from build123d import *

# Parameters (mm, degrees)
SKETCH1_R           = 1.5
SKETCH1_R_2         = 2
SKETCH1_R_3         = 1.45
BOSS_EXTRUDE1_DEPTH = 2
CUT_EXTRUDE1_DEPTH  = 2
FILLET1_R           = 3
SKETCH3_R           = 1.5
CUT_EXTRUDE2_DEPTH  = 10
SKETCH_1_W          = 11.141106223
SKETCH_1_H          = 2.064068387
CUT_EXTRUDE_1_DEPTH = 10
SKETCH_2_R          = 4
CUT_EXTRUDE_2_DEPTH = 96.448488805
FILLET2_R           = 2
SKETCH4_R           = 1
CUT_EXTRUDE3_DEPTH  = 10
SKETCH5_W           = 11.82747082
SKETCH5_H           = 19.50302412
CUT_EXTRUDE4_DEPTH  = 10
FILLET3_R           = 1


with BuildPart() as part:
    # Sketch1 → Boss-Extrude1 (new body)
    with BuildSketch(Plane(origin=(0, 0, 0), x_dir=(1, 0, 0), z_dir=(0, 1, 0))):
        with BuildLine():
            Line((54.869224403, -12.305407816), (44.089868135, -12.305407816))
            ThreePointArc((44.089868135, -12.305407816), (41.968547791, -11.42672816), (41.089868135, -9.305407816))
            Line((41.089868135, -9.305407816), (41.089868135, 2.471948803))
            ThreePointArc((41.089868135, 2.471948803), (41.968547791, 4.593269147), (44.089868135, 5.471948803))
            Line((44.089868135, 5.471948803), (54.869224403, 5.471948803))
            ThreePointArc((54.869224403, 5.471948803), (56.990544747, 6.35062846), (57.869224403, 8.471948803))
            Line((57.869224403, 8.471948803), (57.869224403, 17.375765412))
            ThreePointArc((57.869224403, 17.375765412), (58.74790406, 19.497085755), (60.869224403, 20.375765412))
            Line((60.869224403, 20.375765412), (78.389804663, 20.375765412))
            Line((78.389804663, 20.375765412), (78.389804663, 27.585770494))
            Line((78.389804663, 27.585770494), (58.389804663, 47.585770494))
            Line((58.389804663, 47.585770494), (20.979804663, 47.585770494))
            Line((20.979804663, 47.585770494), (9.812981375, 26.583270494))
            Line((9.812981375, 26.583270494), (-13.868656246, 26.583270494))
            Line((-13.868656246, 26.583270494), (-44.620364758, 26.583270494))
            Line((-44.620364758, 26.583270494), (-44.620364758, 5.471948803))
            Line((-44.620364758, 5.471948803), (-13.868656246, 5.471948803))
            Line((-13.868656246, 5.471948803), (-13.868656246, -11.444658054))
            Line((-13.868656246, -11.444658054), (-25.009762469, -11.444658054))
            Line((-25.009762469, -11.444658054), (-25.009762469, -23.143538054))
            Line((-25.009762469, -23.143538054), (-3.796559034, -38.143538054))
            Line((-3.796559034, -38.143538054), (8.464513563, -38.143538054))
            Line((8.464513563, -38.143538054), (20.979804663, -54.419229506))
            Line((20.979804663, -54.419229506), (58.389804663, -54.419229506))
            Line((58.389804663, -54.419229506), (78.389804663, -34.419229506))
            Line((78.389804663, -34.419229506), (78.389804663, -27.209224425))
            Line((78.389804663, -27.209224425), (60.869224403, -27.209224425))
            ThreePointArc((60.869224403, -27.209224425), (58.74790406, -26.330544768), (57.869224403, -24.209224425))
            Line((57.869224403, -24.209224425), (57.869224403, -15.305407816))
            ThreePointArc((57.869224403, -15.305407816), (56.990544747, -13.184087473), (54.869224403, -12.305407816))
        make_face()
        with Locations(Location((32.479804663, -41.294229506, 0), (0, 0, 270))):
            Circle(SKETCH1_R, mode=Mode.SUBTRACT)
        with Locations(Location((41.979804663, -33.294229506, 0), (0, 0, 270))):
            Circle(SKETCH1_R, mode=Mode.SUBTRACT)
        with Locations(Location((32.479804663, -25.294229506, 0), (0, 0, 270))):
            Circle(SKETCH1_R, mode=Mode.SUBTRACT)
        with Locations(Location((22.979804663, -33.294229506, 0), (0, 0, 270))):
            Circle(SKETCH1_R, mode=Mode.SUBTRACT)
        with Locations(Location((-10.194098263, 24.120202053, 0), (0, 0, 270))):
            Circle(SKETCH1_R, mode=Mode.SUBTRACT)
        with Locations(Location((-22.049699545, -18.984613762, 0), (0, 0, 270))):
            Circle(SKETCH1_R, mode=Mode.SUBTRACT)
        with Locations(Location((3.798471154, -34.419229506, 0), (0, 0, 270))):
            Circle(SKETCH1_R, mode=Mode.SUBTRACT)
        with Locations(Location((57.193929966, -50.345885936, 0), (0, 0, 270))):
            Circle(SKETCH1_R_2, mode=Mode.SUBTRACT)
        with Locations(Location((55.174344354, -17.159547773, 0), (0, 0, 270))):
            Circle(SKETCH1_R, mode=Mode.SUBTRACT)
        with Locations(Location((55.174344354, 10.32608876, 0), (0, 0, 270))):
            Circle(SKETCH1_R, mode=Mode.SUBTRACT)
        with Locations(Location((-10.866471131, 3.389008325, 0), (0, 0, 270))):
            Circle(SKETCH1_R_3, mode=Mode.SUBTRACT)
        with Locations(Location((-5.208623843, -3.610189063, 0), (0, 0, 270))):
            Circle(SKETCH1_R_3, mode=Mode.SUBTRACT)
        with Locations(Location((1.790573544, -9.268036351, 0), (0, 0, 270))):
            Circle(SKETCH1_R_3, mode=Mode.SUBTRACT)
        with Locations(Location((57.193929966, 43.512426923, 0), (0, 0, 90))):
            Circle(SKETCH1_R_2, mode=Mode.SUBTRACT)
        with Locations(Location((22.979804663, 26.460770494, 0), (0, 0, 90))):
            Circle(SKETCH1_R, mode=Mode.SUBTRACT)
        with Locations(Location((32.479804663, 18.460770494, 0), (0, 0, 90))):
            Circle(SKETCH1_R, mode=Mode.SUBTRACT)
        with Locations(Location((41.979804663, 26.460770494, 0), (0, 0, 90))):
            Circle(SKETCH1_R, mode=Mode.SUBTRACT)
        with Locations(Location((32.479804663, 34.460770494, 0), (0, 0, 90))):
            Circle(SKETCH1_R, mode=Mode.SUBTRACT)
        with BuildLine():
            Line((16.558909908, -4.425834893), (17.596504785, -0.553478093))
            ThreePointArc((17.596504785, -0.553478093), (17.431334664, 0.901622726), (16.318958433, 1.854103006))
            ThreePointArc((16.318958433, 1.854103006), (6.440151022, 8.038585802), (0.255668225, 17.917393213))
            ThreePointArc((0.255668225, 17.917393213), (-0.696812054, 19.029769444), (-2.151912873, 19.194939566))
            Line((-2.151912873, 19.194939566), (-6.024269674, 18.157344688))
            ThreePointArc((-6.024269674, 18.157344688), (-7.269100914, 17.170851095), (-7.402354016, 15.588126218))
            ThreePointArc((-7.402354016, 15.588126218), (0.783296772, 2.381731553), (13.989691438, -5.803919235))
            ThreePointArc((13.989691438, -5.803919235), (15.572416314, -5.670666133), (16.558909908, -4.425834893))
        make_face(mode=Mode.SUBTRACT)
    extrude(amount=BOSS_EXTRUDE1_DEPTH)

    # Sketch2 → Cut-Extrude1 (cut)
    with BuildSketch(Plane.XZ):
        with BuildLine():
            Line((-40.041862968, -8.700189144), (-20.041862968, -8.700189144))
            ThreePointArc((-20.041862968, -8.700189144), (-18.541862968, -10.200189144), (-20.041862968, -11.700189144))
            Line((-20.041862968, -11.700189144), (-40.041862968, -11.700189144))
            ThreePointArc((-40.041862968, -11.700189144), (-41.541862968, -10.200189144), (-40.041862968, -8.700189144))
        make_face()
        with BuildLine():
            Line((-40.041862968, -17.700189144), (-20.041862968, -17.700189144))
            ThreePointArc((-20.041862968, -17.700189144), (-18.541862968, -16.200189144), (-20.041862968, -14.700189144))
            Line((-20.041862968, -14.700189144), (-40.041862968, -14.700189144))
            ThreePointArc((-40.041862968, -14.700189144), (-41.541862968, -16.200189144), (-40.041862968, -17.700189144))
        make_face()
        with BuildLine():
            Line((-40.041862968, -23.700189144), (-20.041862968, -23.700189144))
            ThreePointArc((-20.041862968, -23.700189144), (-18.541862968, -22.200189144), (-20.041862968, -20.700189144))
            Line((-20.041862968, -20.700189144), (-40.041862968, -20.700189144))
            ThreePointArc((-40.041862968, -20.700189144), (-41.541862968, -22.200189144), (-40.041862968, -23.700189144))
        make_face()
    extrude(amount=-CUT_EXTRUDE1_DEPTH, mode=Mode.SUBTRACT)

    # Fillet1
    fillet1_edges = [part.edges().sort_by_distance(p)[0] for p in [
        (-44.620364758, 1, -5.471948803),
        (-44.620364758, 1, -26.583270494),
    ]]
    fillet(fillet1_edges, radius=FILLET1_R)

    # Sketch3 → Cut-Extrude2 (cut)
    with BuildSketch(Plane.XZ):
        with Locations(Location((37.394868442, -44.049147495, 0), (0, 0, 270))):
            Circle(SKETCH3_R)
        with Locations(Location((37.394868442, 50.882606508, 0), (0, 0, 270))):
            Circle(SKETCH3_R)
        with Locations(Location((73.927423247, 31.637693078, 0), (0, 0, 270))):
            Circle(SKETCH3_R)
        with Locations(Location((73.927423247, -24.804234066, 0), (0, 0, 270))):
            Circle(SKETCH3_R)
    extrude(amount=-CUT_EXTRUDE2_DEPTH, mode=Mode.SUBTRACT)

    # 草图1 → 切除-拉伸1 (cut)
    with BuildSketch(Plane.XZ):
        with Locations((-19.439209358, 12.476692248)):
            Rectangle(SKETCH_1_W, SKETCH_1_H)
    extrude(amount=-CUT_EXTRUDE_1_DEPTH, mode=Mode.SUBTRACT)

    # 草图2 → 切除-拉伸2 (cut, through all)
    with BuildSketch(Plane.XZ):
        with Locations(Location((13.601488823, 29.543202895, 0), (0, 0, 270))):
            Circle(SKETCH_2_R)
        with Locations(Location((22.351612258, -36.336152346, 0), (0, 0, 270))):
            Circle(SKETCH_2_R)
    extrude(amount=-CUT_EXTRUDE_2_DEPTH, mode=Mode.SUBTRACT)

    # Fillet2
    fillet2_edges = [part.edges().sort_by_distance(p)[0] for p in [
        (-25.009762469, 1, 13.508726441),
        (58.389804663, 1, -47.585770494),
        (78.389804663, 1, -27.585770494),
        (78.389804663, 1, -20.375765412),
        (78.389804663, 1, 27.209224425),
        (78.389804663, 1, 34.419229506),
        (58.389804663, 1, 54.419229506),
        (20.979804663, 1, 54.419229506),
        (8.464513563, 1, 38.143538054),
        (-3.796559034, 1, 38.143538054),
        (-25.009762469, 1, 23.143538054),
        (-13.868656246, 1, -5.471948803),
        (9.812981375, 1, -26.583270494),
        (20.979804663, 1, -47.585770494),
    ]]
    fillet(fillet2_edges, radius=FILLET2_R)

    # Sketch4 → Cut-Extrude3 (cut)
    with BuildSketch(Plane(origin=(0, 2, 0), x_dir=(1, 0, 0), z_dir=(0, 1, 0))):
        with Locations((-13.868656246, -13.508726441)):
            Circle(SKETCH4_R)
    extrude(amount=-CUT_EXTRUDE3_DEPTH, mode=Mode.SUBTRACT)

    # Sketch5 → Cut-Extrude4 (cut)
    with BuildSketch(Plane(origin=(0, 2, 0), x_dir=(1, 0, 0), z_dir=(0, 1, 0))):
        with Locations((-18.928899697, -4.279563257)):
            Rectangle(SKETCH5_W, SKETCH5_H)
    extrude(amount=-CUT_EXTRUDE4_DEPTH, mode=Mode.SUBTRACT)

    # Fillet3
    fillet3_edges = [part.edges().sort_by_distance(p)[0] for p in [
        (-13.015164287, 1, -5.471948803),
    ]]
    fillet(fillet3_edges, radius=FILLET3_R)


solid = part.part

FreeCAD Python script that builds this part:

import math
import FreeCAD as App
import Part
import Sketcher
from FreeCAD import Vector
Q = App.Units.Quantity


def edges_at(feature, points):
    """Names of the edges that pass closest to the given points."""
    edges = feature.Shape.Edges
    near = lambda p: min(range(len(edges)), key=lambda i: edges[i].distToShape(Part.Vertex(*p))[0])
    return sorted({f"Edge{near(p) + 1}" for p in points})


def add_polygon(sketch, points):
    """Adds a closed chain of lines whose ends are joined by coincident constraints."""
    first, n = sketch.GeometryCount, len(points)
    for a, b in zip(points, points[1:] + points[:1]):
        sketch.addGeometry(Part.LineSegment(App.Vector(*a, 0), App.Vector(*b, 0)), False)
    for i in range(n):
        sketch.addConstraint(Sketcher.Constraint("Coincident", first + i, 2, first + (i + 1) % n, 1))

doc = App.newDocument("Part")
body = doc.addObject("PartDesign::Body", "Body")

# Sketch on XZ plane
sketch1 = doc.addObject("Sketcher::SketchObject", "Sketch")
body.addObject(sketch1)
sketch1.AttachmentSupport = (doc.XZ_Plane, [""])
sketch1.MapMode = "FlatFace"
sketch1.addGeometry([
    Part.LineSegment(Vector(54.869224, 12.305408, 0), Vector(44.089868, 12.305408, 0)),  # 0
    Part.ArcOfCircle(Part.Circle(Vector(44.089868, 9.305408, 0), Vector(0, 0, 1), 3), math.radians(90), math.radians(180)),  # 1
    Part.LineSegment(Vector(41.089868, 9.305408, 0), Vector(41.089868, -2.471949, 0)),  # 2
    Part.ArcOfCircle(Part.Circle(Vector(44.089868, -2.471949, 0), Vector(0, 0, 1), 3), math.radians(180), math.radians(270)),  # 3
    Part.LineSegment(Vector(44.089868, -5.471949, 0), Vector(54.869224, -5.471949, 0)),  # 4
    Part.ArcOfCircle(Part.Circle(Vector(54.869224, -8.471949, 0), Vector(0, 0, 1), 3), math.radians(0), math.radians(90)),  # 5
    Part.LineSegment(Vector(57.869224, -8.471949, 0), Vector(57.869224, -17.375765, 0)),  # 6
    Part.ArcOfCircle(Part.Circle(Vector(60.869224, -17.375765, 0), Vector(0, 0, 1), 3), math.radians(-180), math.radians(-90)),  # 7
    Part.LineSegment(Vector(60.869224, -20.375765, 0), Vector(78.389805, -20.375765, 0)),  # 8
    Part.LineSegment(Vector(78.389805, -20.375765, 0), Vector(78.389805, -27.58577, 0)),  # 9
    Part.LineSegment(Vector(78.389805, -27.58577, 0), Vector(58.389805, -47.58577, 0)),  # 10
    Part.LineSegment(Vector(58.389805, -47.58577, 0), Vector(20.979805, -47.58577, 0)),  # 11
    Part.LineSegment(Vector(20.979805, -47.58577, 0), Vector(9.812981, -26.58327, 0)),  # 12
    Part.LineSegment(Vector(9.812981, -26.58327, 0), Vector(-44.620365, -26.58327, 0)),  # 13
    Part.LineSegment(Vector(-44.620365, -26.58327, 0), Vector(-44.620365, -5.471949, 0)),  # 14
    Part.LineSegment(Vector(-44.620365, -5.471949, 0), Vector(-13.868656, -5.471949, 0)),  # 15
    Part.LineSegment(Vector(-13.868656, -5.471949, 0), Vector(-13.868656, 11.444658, 0)),  # 16
    Part.LineSegment(Vector(-13.868656, 11.444658, 0), Vector(-25.009762, 11.444658, 0)),  # 17
    Part.LineSegment(Vector(-25.009762, 11.444658, 0), Vector(-25.009762, 23.143538, 0)),  # 18
    Part.LineSegment(Vector(-25.009762, 23.143538, 0), Vector(-3.796559, 38.143538, 0)),  # 19
    Part.LineSegment(Vector(-3.796559, 38.143538, 0), Vector(8.464514, 38.143538, 0)),  # 20
    Part.LineSegment(Vector(8.464514, 38.143538, 0), Vector(20.979805, 54.41923, 0)),  # 21
    Part.LineSegment(Vector(20.979805, 54.41923, 0), Vector(58.389805, 54.41923, 0)),  # 22
    Part.LineSegment(Vector(58.389805, 54.41923, 0), Vector(78.389805, 34.41923, 0)),  # 23
    Part.LineSegment(Vector(78.389805, 34.41923, 0), Vector(78.389805, 27.209224, 0)),  # 24
    Part.LineSegment(Vector(78.389805, 27.209224, 0), Vector(60.869224, 27.209224, 0)),  # 25
    Part.ArcOfCircle(Part.Circle(Vector(60.869224, 24.209224, 0), Vector(0, 0, 1), 3), math.radians(90), math.radians(180)),  # 26
    Part.LineSegment(Vector(57.869224, 24.209224, 0), Vector(57.869224, 15.305408, 0)),  # 27
    Part.ArcOfCircle(Part.Circle(Vector(54.869224, 15.305408, 0), Vector(0, 0, 1), 3), math.radians(-90), math.radians(0)),  # 28
    Part.Circle(Vector(3.798471, 34.41923, 0), Vector(0, 0, 1), 1.5),  # 29
    Part.Circle(Vector(-22.0497, 18.984614, 0), Vector(0, 0, 1), 1.5),  # 30
    Part.Circle(Vector(-5.208624, 3.610189, 0), Vector(0, 0, 1), 1.45),  # 31
    Part.Circle(Vector(1.790574, 9.268036, 0), Vector(0, 0, 1), 1.45),  # 32
    Part.Circle(Vector(32.479805, 41.29423, 0), Vector(0, 0, 1), 1.5),  # 33
    Part.Circle(Vector(22.979805, 33.29423, 0), Vector(0, 0, 1), 1.5),  # 34
    Part.Circle(Vector(57.19393, 50.345886, 0), Vector(0, 0, 1), 2),  # 35
    Part.Circle(Vector(41.979805, 33.29423, 0), Vector(0, 0, 1), 1.5),  # 36
    Part.Circle(Vector(32.479805, 25.29423, 0), Vector(0, 0, 1), 1.5),  # 37
    Part.Circle(Vector(55.174344, 17.159548, 0), Vector(0, 0, 1), 1.5),  # 38
    Part.Circle(Vector(-10.866471, -3.389008, 0), Vector(0, 0, 1), 1.45),  # 39
    Part.LineSegment(Vector(17.596505, 0.553478, 0), Vector(16.55891, 4.425835, 0)),  # 40
    Part.ArcOfCircle(Part.Circle(Vector(14.627058, 3.908197, 0), Vector(0, 0, 1), 2), math.radians(15), math.radians(108.583322)),  # 41
    Part.ArcOfCircle(Part.Circle(Vector(24.824927, -26.423362, 0), Vector(0, 0, 1), 34), math.radians(108.583322), math.radians(161.416678)),  # 42
    Part.ArcOfCircle(Part.Circle(Vector(-5.506632, -16.225493, 0), Vector(0, 0, 1), 2), math.radians(161.416678), math.radians(255)),  # 43
    Part.LineSegment(Vector(-6.02427, -18.157345, 0), Vector(-2.151913, -19.19494, 0)),  # 44
    Part.ArcOfCircle(Part.Circle(Vector(-1.634275, -17.263088, 0), Vector(0, 0, 1), 2), math.radians(-105), math.radians(-19.096044)),  # 45
    Part.ArcOfCircle(Part.Circle(Vector(24.824927, -26.423362, 0), Vector(0, 0, 1), 26), math.radians(109.096044), math.radians(160.903956)),  # 46
    Part.ArcOfCircle(Part.Circle(Vector(15.664653, 0.03584, 0), Vector(0, 0, 1), 2), math.radians(-70.903956), math.radians(15)),  # 47
    Part.Circle(Vector(-10.194098, -24.120202, 0), Vector(0, 0, 1), 1.5),  # 48
    Part.Circle(Vector(32.479805, -18.46077, 0), Vector(0, 0, 1), 1.5),  # 49
    Part.Circle(Vector(55.174344, -10.326089, 0), Vector(0, 0, 1), 1.5),  # 50
    Part.Circle(Vector(22.979805, -26.46077, 0), Vector(0, 0, 1), 1.5),  # 51
    Part.Circle(Vector(32.479805, -34.46077, 0), Vector(0, 0, 1), 1.5),  # 52
    Part.Circle(Vector(41.979805, -26.46077, 0), Vector(0, 0, 1), 1.5),  # 53
    Part.Circle(Vector(57.19393, -43.512427, 0), Vector(0, 0, 1), 2),  # 54
], False)
sketch1.addConstraint([
    Sketcher.Constraint("Coincident", 0, 2, 1, 1),
    Sketcher.Constraint("Coincident", 1, 2, 2, 1),
    Sketcher.Constraint("Coincident", 2, 2, 3, 1),
    Sketcher.Constraint("Coincident", 3, 2, 4, 1),
    Sketcher.Constraint("Coincident", 4, 2, 5, 2),
    Sketcher.Constraint("Coincident", 5, 1, 6, 1),
    Sketcher.Constraint("Coincident", 6, 2, 7, 1),
    Sketcher.Constraint("Coincident", 7, 2, 8, 1),
    Sketcher.Constraint("Coincident", 8, 2, 9, 1),
    Sketcher.Constraint("Coincident", 9, 2, 10, 1),
    Sketcher.Constraint("Coincident", 10, 2, 11, 1),
    Sketcher.Constraint("Coincident", 11, 2, 12, 1),
    Sketcher.Constraint("Coincident", 12, 2, 13, 1),
    Sketcher.Constraint("Coincident", 13, 2, 14, 1),
    Sketcher.Constraint("Coincident", 14, 2, 15, 1),
    Sketcher.Constraint("Coincident", 15, 2, 16, 1),
    Sketcher.Constraint("Coincident", 16, 2, 17, 1),
    Sketcher.Constraint("Coincident", 17, 2, 18, 1),
    Sketcher.Constraint("Coincident", 18, 2, 19, 1),
    Sketcher.Constraint("Coincident", 19, 2, 20, 1),
    Sketcher.Constraint("Coincident", 20, 2, 21, 1),
    Sketcher.Constraint("Coincident", 21, 2, 22, 1),
    Sketcher.Constraint("Coincident", 22, 2, 23, 1),
    Sketcher.Constraint("Coincident", 23, 2, 24, 1),
    Sketcher.Constraint("Coincident", 24, 2, 25, 1),
    Sketcher.Constraint("Coincident", 25, 2, 26, 1),
    Sketcher.Constraint("Coincident", 26, 2, 27, 1),
    Sketcher.Constraint("Coincident", 27, 2, 28, 2),
    Sketcher.Constraint("Coincident", 28, 1, 0, 1),
    Sketcher.Constraint("Coincident", 40, 2, 41, 1),
    Sketcher.Constraint("Coincident", 41, 2, 42, 1),
    Sketcher.Constraint("Coincident", 42, 2, 43, 1),
    Sketcher.Constraint("Coincident", 43, 2, 44, 1),
    Sketcher.Constraint("Coincident", 44, 2, 45, 1),
    Sketcher.Constraint("Coincident", 45, 2, 46, 2),
    Sketcher.Constraint("Coincident", 46, 1, 47, 1),
    Sketcher.Constraint("Coincident", 47, 2, 40, 1),
    Sketcher.Constraint("Horizontal", 0),
    Sketcher.Constraint("Vertical", 2),
    Sketcher.Constraint("Horizontal", 4),
    Sketcher.Constraint("Vertical", 6),
    Sketcher.Constraint("Horizontal", 8),
    Sketcher.Constraint("Vertical", 9),
    Sketcher.Constraint("Horizontal", 11),
    Sketcher.Constraint("Horizontal", 13),
    Sketcher.Constraint("Vertical", 14),
    Sketcher.Constraint("Horizontal", 15),
    Sketcher.Constraint("Vertical", 16),
    Sketcher.Constraint("Horizontal", 17),
    Sketcher.Constraint("Vertical", 18),
    Sketcher.Constraint("Horizontal", 20),
    Sketcher.Constraint("Horizontal", 22),
    Sketcher.Constraint("Vertical", 24),
    Sketcher.Constraint("Horizontal", 25),
    Sketcher.Constraint("Vertical", 27),
    Sketcher.Constraint("Coincident", 46, 3, 42, 3),
    Sketcher.Constraint("Diameter", 29, Q("3 mm")),
    Sketcher.Constraint("Diameter", 30, Q("3 mm")),
    Sketcher.Constraint("Diameter", 33, Q("3 mm")),
    Sketcher.Constraint("Diameter", 34, Q("3 mm")),
    Sketcher.Constraint("Diameter", 35, Q("4 mm")),
    Sketcher.Constraint("Diameter", 36, Q("3 mm")),
    Sketcher.Constraint("Diameter", 37, Q("3 mm")),
    Sketcher.Constraint("Diameter", 38, Q("3 mm")),
    Sketcher.Constraint("Diameter", 48, Q("3 mm")),
    Sketcher.Constraint("Diameter", 49, Q("3 mm")),
    Sketcher.Constraint("Diameter", 50, Q("3 mm")),
    Sketcher.Constraint("Diameter", 51, Q("3 mm")),
    Sketcher.Constraint("Diameter", 52, Q("3 mm")),
    Sketcher.Constraint("Diameter", 53, Q("3 mm")),
    Sketcher.Constraint("Diameter", 54, Q("4 mm")),
    Sketcher.Constraint("Radius", 1, Q("3 mm")),
    Sketcher.Constraint("Radius", 3, Q("3 mm")),
    Sketcher.Constraint("Radius", 5, Q("3 mm")),
    Sketcher.Constraint("Radius", 7, Q("3 mm")),
    Sketcher.Constraint("Radius", 26, Q("3 mm")),
    Sketcher.Constraint("Radius", 28, Q("3 mm")),
    Sketcher.Constraint("Radius", 41, Q("2 mm")),
    Sketcher.Constraint("Radius", 42, Q("34 mm")),
    Sketcher.Constraint("Radius", 43, Q("2 mm")),
    Sketcher.Constraint("Radius", 45, Q("2 mm")),
    Sketcher.Constraint("Radius", 46, Q("26 mm")),
    Sketcher.Constraint("Radius", 47, Q("2 mm")),
    Sketcher.Constraint("Diameter", 31, Q("2.9 mm")),
    Sketcher.Constraint("Diameter", 32, Q("2.9 mm")),
    Sketcher.Constraint("Diameter", 39, Q("2.9 mm")),
    Sketcher.Constraint("DistanceX", 11, 2, 11, 1, Q("37.41 mm")),
    Sketcher.Constraint("DistanceX", 22, 1, 22, 2, Q("37.41 mm")),
    Sketcher.Constraint("DistanceX", 8, 1, 8, 2, Q("17.52058 mm")),
    Sketcher.Constraint("DistanceX", 15, 1, 15, 2, Q("30.751709 mm")),
    Sketcher.Constraint("DistanceX", 25, 2, 25, 1, Q("17.52058 mm")),
    Sketcher.Constraint("DistanceY", 14, 1, 14, 2, Q("21.111322 mm")),
    Sketcher.Constraint("DistanceY", 18, 1, 18, 2, Q("11.69888 mm")),
    Sketcher.Constraint("DistanceX", 30, 3, -1, 1, Q("22.0497 mm")),
    Sketcher.Constraint("DistanceX", 48, 3, -1, 1, Q("10.194098 mm")),
    Sketcher.Constraint("Distance", 10, Q("28.284271 mm")),
    Sketcher.Constraint("Distance", 21, Q("20.531211 mm")),
    Sketcher.Constraint("Distance", 23, Q("28.284271 mm")),
    Sketcher.Constraint("Distance", 40, Q("4.008959 mm")),
    Sketcher.Constraint("Distance", 44, Q("4.008959 mm")),
    Sketcher.Constraint("DistanceX", 0, 2, 0, 1, Q("10.779356 mm")),
    Sketcher.Constraint("DistanceX", 4, 1, 4, 2, Q("10.779356 mm")),
    Sketcher.Constraint("DistanceX", 13, 2, 13, 1, Q("54.433346 mm")),
    Sketcher.Constraint("DistanceX", 17, 2, 17, 1, Q("11.141106 mm")),
    Sketcher.Constraint("DistanceX", 20, 1, 20, 2, Q("12.261073 mm")),
    Sketcher.Constraint("DistanceY", 2, 2, 2, 1, Q("11.777357 mm")),
    Sketcher.Constraint("DistanceY", 6, 2, 6, 1, Q("8.903817 mm")),
    Sketcher.Constraint("DistanceY", 9, 2, 9, 1, Q("7.210005 mm")),
    Sketcher.Constraint("DistanceY", 16, 1, 16, 2, Q("16.916607 mm")),
    Sketcher.Constraint("DistanceY", 24, 2, 24, 1, Q("7.210005 mm")),
    Sketcher.Constraint("DistanceY", 27, 2, 27, 1, Q("8.903817 mm")),
    Sketcher.Constraint("DistanceX", -1, 1, 1, 3, Q("44.089868 mm")),
    Sketcher.Constraint("DistanceY", 3, 3, -1, 1, Q("2.471949 mm")),
    Sketcher.Constraint("DistanceX", -1, 1, 29, 3, Q("3.798471 mm")),
    Sketcher.Constraint("DistanceY", -1, 1, 29, 3, Q("34.41923 mm")),
    Sketcher.Constraint("DistanceY", -1, 1, 31, 3, Q("3.610189 mm")),
    Sketcher.Constraint("DistanceY", -1, 1, 33, 3, Q("41.29423 mm")),
    Sketcher.Constraint("DistanceY", -1, 1, 34, 3, Q("33.29423 mm")),
    Sketcher.Constraint("DistanceX", -1, 1, 35, 3, Q("57.19393 mm")),
    Sketcher.Constraint("DistanceY", -1, 1, 36, 3, Q("33.29423 mm")),
    Sketcher.Constraint("DistanceY", -1, 1, 37, 3, Q("25.29423 mm")),
    Sketcher.Constraint("DistanceX", 39, 3, -1, 1, Q("10.866471 mm")),
    Sketcher.Constraint("DistanceY", 39, 3, -1, 1, Q("3.389008 mm")),
    Sketcher.Constraint("DistanceX", -1, 1, 41, 3, Q("14.627058 mm")),
    Sketcher.Constraint("DistanceX", 43, 3, -1, 1, Q("5.506632 mm")),
    Sketcher.Constraint("DistanceY", -1, 1, 47, 3, Q("0.03584 mm")),
    Sketcher.Constraint("DistanceY", 49, 3, -1, 1, Q("18.46077 mm")),
    Sketcher.Constraint("DistanceY", 50, 3, -1, 1, Q("10.326089 mm")),
    Sketcher.Constraint("DistanceY", 51, 3, -1, 1, Q("26.46077 mm")),
    Sketcher.Constraint("DistanceY", 52, 3, -1, 1, Q("34.46077 mm")),
    Sketcher.Constraint("DistanceY", 53, 3, -1, 1, Q("26.46077 mm")),
    Sketcher.Constraint("DistanceX", -1, 1, 54, 3, Q("57.19393 mm")),
    Sketcher.Constraint("DistanceX", -1, 1, 0, 2, Q("44.089868 mm")),
    Sketcher.Constraint("DistanceY", 2, 2, -1, 1, Q("2.471949 mm")),
    Sketcher.Constraint("DistanceX", -1, 1, 3, 2, Q("44.089868 mm")),
    Sketcher.Constraint("DistanceY", 5, 1, -1, 1, Q("8.471949 mm")),
    Sketcher.Constraint("DistanceY", 9, 2, -1, 1, Q("27.58577 mm")),
    Sketcher.Constraint("DistanceY", 10, 2, -1, 1, Q("47.58577 mm")),
    Sketcher.Constraint("DistanceX", -1, 1, 12, 2, Q("9.812981 mm")),
    Sketcher.Constraint("DistanceY", 12, 2, -1, 1, Q("26.58327 mm")),
    Sketcher.Constraint("DistanceX", 19, 2, -1, 1, Q("3.796559 mm")),
    Sketcher.Constraint("DistanceY", -1, 1, 19, 2, Q("38.143538 mm")),
    Sketcher.Constraint("DistanceY", -1, 1, 21, 2, Q("54.41923 mm")),
    Sketcher.Constraint("DistanceY", -1, 1, 23, 2, Q("34.41923 mm")),
    Sketcher.Constraint("DistanceX", -1, 1, 40, 2, Q("16.55891 mm")),
    Sketcher.Constraint("DistanceX", -1, 1, 41, 2, Q("13.989691 mm")),
    Sketcher.Constraint("DistanceY", -1, 1, 41, 2, Q("5.803919 mm")),
    Sketcher.Constraint("DistanceX", 43, 2, -1, 1, Q("6.02427 mm")),
    Sketcher.Constraint("DistanceY", 44, 2, -1, 1, Q("19.19494 mm")),
    Sketcher.Constraint("DistanceX", -1, 1, 45, 2, Q("0.255668 mm")),
    Sketcher.Constraint("DistanceX", -1, 1, 46, 1, Q("16.318958 mm")),
    Sketcher.Constraint("Distance", 12, Q("23.786613 mm")),
    Sketcher.Constraint("DistanceY", -1, 1, 1, 3, Q("9.305408 mm")),
    Sketcher.Constraint("DistanceX", -1, 1, 5, 3, Q("54.869224 mm")),
    Sketcher.Constraint("DistanceX", -1, 1, 26, 3, Q("60.869224 mm")),
    Sketcher.Constraint("DistanceY", -1, 1, 30, 3, Q("18.984614 mm")),
    Sketcher.Constraint("DistanceX", 31, 3, -1, 1, Q("5.208624 mm")),
    Sketcher.Constraint("DistanceX", -1, 1, 32, 3, Q("1.790574 mm")),
    Sketcher.Constraint("DistanceY", -1, 1, 32, 3, Q("9.268036 mm")),
    Sketcher.Constraint("DistanceX", -1, 1, 33, 3, Q("32.479805 mm")),
    Sketcher.Constraint("DistanceX", -1, 1, 34, 3, Q("22.979805 mm")),
    Sketcher.Constraint("DistanceY", -1, 1, 35, 3, Q("50.345886 mm")),
    Sketcher.Constraint("DistanceX", -1, 1, 36, 3, Q("41.979805 mm")),
    Sketcher.Constraint("DistanceX", -1, 1, 37, 3, Q("32.479805 mm")),
    Sketcher.Constraint("DistanceX", -1, 1, 38, 3, Q("55.174344 mm")),
    Sketcher.Constraint("DistanceY", -1, 1, 38, 3, Q("17.159548 mm")),
    Sketcher.Constraint("DistanceX", -1, 1, 42, 3, Q("24.824927 mm")),
    Sketcher.Constraint("DistanceY", 48, 3, -1, 1, Q("24.120202 mm")),
    Sketcher.Constraint("DistanceX", -1, 1, 49, 3, Q("32.479805 mm")),
    Sketcher.Constraint("DistanceX", -1, 1, 50, 3, Q("55.174344 mm")),
    Sketcher.Constraint("DistanceX", -1, 1, 51, 3, Q("22.979805 mm")),
    Sketcher.Constraint("DistanceX", -1, 1, 52, 3, Q("32.479805 mm")),
    Sketcher.Constraint("DistanceX", -1, 1, 53, 3, Q("41.979805 mm")),
    Sketcher.Constraint("DistanceY", 54, 3, -1, 1, Q("43.512427 mm")),
    Sketcher.Constraint("DistanceY", -1, 1, 26, 2, Q("24.209224 mm")),
    Sketcher.Constraint("DistanceX", 42, 2, -1, 1, Q("7.402354 mm")),
])
pad1 = doc.addObject("PartDesign::Pad", "Pad")
body.addObject(pad1)
pad1.Profile = sketch1
pad1.Length = 2
pad1.Reversed = True

# Sketch on XZ plane
sketch2 = doc.addObject("Sketcher::SketchObject", "Sketch001")
body.addObject(sketch2)
sketch2.AttachmentSupport = (doc.XZ_Plane, [""])
sketch2.MapMode = "FlatFace"
sketch2.addGeometry([
    Part.LineSegment(Vector(-20, -8.7, 0), Vector(-40, -8.7, 0)),  # 0
    Part.ArcOfCircle(Part.Circle(Vector(-40, -10.2, 0), Vector(0, 0, 1), 1.5), math.radians(90), math.radians(270)),  # 1
    Part.LineSegment(Vector(-40, -11.7, 0), Vector(-20, -11.7, 0)),  # 2
    Part.ArcOfCircle(Part.Circle(Vector(-20, -10.2, 0), Vector(0, 0, 1), 1.5), math.radians(-90), math.radians(90)),  # 3
    Part.LineSegment(Vector(-40, -17.7, 0), Vector(-20, -17.7, 0)),  # 4
    Part.ArcOfCircle(Part.Circle(Vector(-20, -16.2, 0), Vector(0, 0, 1), 1.5), math.radians(-90), math.radians(90)),  # 5
    Part.LineSegment(Vector(-20, -14.7, 0), Vector(-40, -14.7, 0)),  # 6
    Part.ArcOfCircle(Part.Circle(Vector(-40, -16.2, 0), Vector(0, 0, 1), 1.5), math.radians(90), math.radians(270)),  # 7
    Part.LineSegment(Vector(-40, -23.7, 0), Vector(-20, -23.7, 0)),  # 8
    Part.ArcOfCircle(Part.Circle(Vector(-20, -22.2, 0), Vector(0, 0, 1), 1.5), math.radians(-90), math.radians(90)),  # 9
    Part.LineSegment(Vector(-20, -20.7, 0), Vector(-40, -20.7, 0)),  # 10
    Part.ArcOfCircle(Part.Circle(Vector(-40, -22.2, 0), Vector(0, 0, 1), 1.5), math.radians(90), math.radians(270)),  # 11
], False)
sketch2.addConstraint([
    Sketcher.Constraint("Tangent", 0, 2, 1, 1),
    Sketcher.Constraint("Tangent", 1, 2, 2, 1),
    Sketcher.Constraint("Tangent", 2, 2, 3, 1),
    Sketcher.Constraint("Tangent", 3, 2, 0, 1),
    Sketcher.Constraint("Tangent", 4, 2, 5, 1),
    Sketcher.Constraint("Tangent", 5, 2, 6, 1),
    Sketcher.Constraint("Tangent", 6, 2, 7, 1),
    Sketcher.Constraint("Tangent", 7, 2, 4, 1),
    Sketcher.Constraint("Tangent", 8, 2, 9, 1),
    Sketcher.Constraint("Tangent", 9, 2, 10, 1),
    Sketcher.Constraint("Tangent", 10, 2, 11, 1),
    Sketcher.Constraint("Tangent", 11, 2, 8, 1),
    Sketcher.Constraint("Horizontal", 0),
    Sketcher.Constraint("Horizontal", 2),
    Sketcher.Constraint("Horizontal", 4),
    Sketcher.Constraint("Horizontal", 6),
    Sketcher.Constraint("Horizontal", 8),
    Sketcher.Constraint("Horizontal", 10),
    Sketcher.Constraint("Equal", 3, 5),
    Sketcher.Constraint("Equal", 7, 9),
    Sketcher.Constraint("Vertical", 3, 3, 5, 3),
    Sketcher.Constraint("Vertical", 1, 3, 7, 3),
    Sketcher.Constraint("Vertical", 5, 3, 9, 3),
    Sketcher.Constraint("Vertical", 7, 3, 11, 3),
    Sketcher.Constraint("Radius", 1, Q("1.5 mm")),
    Sketcher.Constraint("DistanceX", 0, 2, 0, 1, Q("20 mm")),
    Sketcher.Constraint("DistanceY", 5, 3, 3, 3, Q("6 mm")),
    Sketcher.Constraint("DistanceY", 9, 3, 5, 3, Q("6 mm")),
    Sketcher.Constraint("DistanceY", 1, 3, -1, 1, Q("10.200189 mm")),
    Sketcher.Constraint("DistanceX", 1, 3, -1, 1, Q("40.041863 mm")),
])
pocket1 = doc.addObject("PartDesign::Pocket", "Pocket")
body.addObject(pocket1)
pocket1.Profile = sketch2
pocket1.Length = 2
doc.recompute()

fillet = doc.addObject("PartDesign::Fillet", "Fillet")
body.addObject(fillet)
fillet.Base = (pocket1, edges_at(pocket1, [(-44.62, 1, -5.472), (-44.62, 1, -26.583)]))
fillet.Radius = 3

# Sketch on XZ plane
sketch3 = doc.addObject("Sketcher::SketchObject", "Sketch002")
body.addObject(sketch3)
sketch3.AttachmentSupport = (doc.XZ_Plane, [""])
sketch3.MapMode = "FlatFace"
sketch3.addGeometry([
    Part.Circle(Vector(37.4, -44, 0), Vector(0, 0, 1), 1.5),
    Part.Circle(Vector(37.4, 50.9, 0), Vector(0, 0, 1), 1.5),
    Part.Circle(Vector(73.9, 31.6, 0), Vector(0, 0, 1), 1.5),
    Part.Circle(Vector(73.9, -24.8, 0), Vector(0, 0, 1), 1.5),
], False)
sketch3.addConstraint([
    Sketcher.Constraint("Equal", 0, 1),
    Sketcher.Constraint("Equal", 1, 2),
    Sketcher.Constraint("Equal", 2, 3),
    Sketcher.Constraint("Vertical", 0, 3, 1, 3),
    Sketcher.Constraint("Vertical", 2, 3, 3, 3),
    Sketcher.Constraint("Diameter", 0, Q("3 mm")),
    Sketcher.Constraint("DistanceX", -1, 1, 0, 3, Q("37.394868 mm")),
    Sketcher.Constraint("DistanceY", 0, 3, 2, 3, Q("75.686841 mm")),
    Sketcher.Constraint("DistanceY", 3, 3, 1, 3, Q("75.686841 mm")),
    Sketcher.Constraint("DistanceY", 0, 3, -1, 1, Q("44.049147 mm")),
    Sketcher.Constraint("DistanceY", -1, 1, 1, 3, Q("50.882607 mm")),
    Sketcher.Constraint("DistanceX", -1, 1, 2, 3, Q("73.927423 mm")),
])
pocket2 = doc.addObject("PartDesign::Pocket", "Pocket001")
body.addObject(pocket2)
pocket2.Profile = sketch3
pocket2.Length = 10

# Sketch on XZ plane
sketch4 = doc.addObject("Sketcher::SketchObject", "Sketch003")
body.addObject(sketch4)
sketch4.AttachmentSupport = (doc.XZ_Plane, [""])
sketch4.MapMode = "FlatFace"
add_polygon(sketch4, [(-25, 13.5), (-25, 11.4), (-13.9, 11.4), (-13.9, 13.5)])  # lines 0-3
sketch4.addConstraint([
    Sketcher.Constraint("Vertical", 0),
    Sketcher.Constraint("Horizontal", 1),
    Sketcher.Constraint("Vertical", 2),
    Sketcher.Constraint("Horizontal", 3),
    Sketcher.Constraint("DistanceY", 0, 2, 0, 1, Q("2.064068 mm")),
    Sketcher.Constraint("DistanceX", 1, 1, 1, 2, Q("11.141106 mm")),
    Sketcher.Constraint("DistanceY", -1, 1, 0, 2, Q("11.444658 mm")),
    Sketcher.Constraint("DistanceX", 0, 2, -1, 1, Q("25.009762 mm")),
])
pocket3 = doc.addObject("PartDesign::Pocket", "Pocket002")
body.addObject(pocket3)
pocket3.Profile = sketch4
pocket3.Length = 10

# Sketch on XZ plane
sketch5 = doc.addObject("Sketcher::SketchObject", "Sketch004")
body.addObject(sketch5)
sketch5.AttachmentSupport = (doc.XZ_Plane, [""])
sketch5.MapMode = "FlatFace"
sketch5.addGeometry([
    Part.Circle(Vector(13.6, 29.5, 0), Vector(0, 0, 1), 4),
    Part.Circle(Vector(22.4, -36.3, 0), Vector(0, 0, 1), 4),
], False)
sketch5.addConstraint([
    Sketcher.Constraint("Equal", 0, 1),
    Sketcher.Constraint("Diameter", 0, Q("8 mm")),
    Sketcher.Constraint("DistanceX", -1, 1, 0, 3, Q("13.601489 mm")),
    Sketcher.Constraint("DistanceY", -1, 1, 0, 3, Q("29.543203 mm")),
    Sketcher.Constraint("DistanceX", -1, 1, 1, 3, Q("22.351612 mm")),
    Sketcher.Constraint("DistanceY", 1, 3, -1, 1, Q("36.336152 mm")),
])
pocket4 = doc.addObject("PartDesign::Pocket", "Pocket003")
body.addObject(pocket4)
pocket4.Profile = sketch5
pocket4.Type = "ThroughAll"
doc.recompute()

fillet2 = doc.addObject("PartDesign::Fillet", "Fillet001")
body.addObject(fillet2)
fillet2.Base = (pocket4, edges_at(pocket4, [
    (-25.01, 1, 13.509),
    (58.39, 1, -47.586),
    (78.39, 1, -27.586),
    (78.39, 1, -20.376),
    (78.39, 1, 27.209),
    (78.39, 1, 34.419),
    (58.39, 1, 54.419),
    (20.98, 1, 54.419),
    (8.465, 1, 38.144),
    (-3.797, 1, 38.144),
    (-25.01, 1, 23.144),
    (-13.869, 1, -5.472),
    (9.813, 1, -26.583),
    (20.98, 1, -47.586),
]))
fillet2.Radius = 2

# Sketch on XZ plane
sketch6 = doc.addObject("Sketcher::SketchObject", "Sketch005")
body.addObject(sketch6)
sketch6.AttachmentSupport = (doc.XZ_Plane, [""])
sketch6.MapMode = "FlatFace"
sketch6.AttachmentOffset = App.Placement(Vector(0, 0, -2), App.Rotation())
sketch6.addGeometry(Part.Circle(Vector(-13.9, 13.5, 0), Vector(0, 0, 1), 1), False)
sketch6.addConstraint([
    Sketcher.Constraint("Diameter", 0, Q("2 mm")),
    Sketcher.Constraint("DistanceX", 0, 3, -1, 1, Q("13.868656 mm")),
    Sketcher.Constraint("DistanceY", -1, 1, 0, 3, Q("13.508726 mm")),
])
pocket5 = doc.addObject("PartDesign::Pocket", "Pocket004")
body.addObject(pocket5)
pocket5.Profile = sketch6
pocket5.Length = 10
pocket5.Reversed = True

# Sketch on XZ plane
sketch7 = doc.addObject("Sketcher::SketchObject", "Sketch006")
body.addObject(sketch7)
sketch7.AttachmentSupport = (doc.XZ_Plane, [""])
sketch7.MapMode = "FlatFace"
sketch7.AttachmentOffset = App.Placement(Vector(0, 0, -2), App.Rotation())
add_polygon(sketch7, [(-25, -5), (-25, 14), (-13, 14), (-13, -5)])  # lines 0-3
sketch7.addConstraint([
    Sketcher.Constraint("Vertical", 0),
    Sketcher.Constraint("Horizontal", 1),
    Sketcher.Constraint("Vertical", 2),
    Sketcher.Constraint("Horizontal", 3),
    Sketcher.Constraint("DistanceX", 1, 1, 1, 2, Q("11.827471 mm")),
    Sketcher.Constraint("DistanceY", 0, 1, 0, 2, Q("19.503024 mm")),
    Sketcher.Constraint("DistanceY", 2, 2, -1, 1, Q("5.471949 mm")),
    Sketcher.Constraint("DistanceX", 0, 2, -1, 1, Q("24.842635 mm")),
])
pocket6 = doc.addObject("PartDesign::Pocket", "Pocket005")
body.addObject(pocket6)
pocket6.Profile = sketch7
pocket6.Length = 10
pocket6.Reversed = True
doc.recompute()

fillet3 = doc.addObject("PartDesign::Fillet", "Fillet002")
body.addObject(fillet3)
fillet3.Base = (pocket6, edges_at(pocket6, [(-13.015, 1, -5.472)]))
fillet3.Radius = 1

doc.recompute()
